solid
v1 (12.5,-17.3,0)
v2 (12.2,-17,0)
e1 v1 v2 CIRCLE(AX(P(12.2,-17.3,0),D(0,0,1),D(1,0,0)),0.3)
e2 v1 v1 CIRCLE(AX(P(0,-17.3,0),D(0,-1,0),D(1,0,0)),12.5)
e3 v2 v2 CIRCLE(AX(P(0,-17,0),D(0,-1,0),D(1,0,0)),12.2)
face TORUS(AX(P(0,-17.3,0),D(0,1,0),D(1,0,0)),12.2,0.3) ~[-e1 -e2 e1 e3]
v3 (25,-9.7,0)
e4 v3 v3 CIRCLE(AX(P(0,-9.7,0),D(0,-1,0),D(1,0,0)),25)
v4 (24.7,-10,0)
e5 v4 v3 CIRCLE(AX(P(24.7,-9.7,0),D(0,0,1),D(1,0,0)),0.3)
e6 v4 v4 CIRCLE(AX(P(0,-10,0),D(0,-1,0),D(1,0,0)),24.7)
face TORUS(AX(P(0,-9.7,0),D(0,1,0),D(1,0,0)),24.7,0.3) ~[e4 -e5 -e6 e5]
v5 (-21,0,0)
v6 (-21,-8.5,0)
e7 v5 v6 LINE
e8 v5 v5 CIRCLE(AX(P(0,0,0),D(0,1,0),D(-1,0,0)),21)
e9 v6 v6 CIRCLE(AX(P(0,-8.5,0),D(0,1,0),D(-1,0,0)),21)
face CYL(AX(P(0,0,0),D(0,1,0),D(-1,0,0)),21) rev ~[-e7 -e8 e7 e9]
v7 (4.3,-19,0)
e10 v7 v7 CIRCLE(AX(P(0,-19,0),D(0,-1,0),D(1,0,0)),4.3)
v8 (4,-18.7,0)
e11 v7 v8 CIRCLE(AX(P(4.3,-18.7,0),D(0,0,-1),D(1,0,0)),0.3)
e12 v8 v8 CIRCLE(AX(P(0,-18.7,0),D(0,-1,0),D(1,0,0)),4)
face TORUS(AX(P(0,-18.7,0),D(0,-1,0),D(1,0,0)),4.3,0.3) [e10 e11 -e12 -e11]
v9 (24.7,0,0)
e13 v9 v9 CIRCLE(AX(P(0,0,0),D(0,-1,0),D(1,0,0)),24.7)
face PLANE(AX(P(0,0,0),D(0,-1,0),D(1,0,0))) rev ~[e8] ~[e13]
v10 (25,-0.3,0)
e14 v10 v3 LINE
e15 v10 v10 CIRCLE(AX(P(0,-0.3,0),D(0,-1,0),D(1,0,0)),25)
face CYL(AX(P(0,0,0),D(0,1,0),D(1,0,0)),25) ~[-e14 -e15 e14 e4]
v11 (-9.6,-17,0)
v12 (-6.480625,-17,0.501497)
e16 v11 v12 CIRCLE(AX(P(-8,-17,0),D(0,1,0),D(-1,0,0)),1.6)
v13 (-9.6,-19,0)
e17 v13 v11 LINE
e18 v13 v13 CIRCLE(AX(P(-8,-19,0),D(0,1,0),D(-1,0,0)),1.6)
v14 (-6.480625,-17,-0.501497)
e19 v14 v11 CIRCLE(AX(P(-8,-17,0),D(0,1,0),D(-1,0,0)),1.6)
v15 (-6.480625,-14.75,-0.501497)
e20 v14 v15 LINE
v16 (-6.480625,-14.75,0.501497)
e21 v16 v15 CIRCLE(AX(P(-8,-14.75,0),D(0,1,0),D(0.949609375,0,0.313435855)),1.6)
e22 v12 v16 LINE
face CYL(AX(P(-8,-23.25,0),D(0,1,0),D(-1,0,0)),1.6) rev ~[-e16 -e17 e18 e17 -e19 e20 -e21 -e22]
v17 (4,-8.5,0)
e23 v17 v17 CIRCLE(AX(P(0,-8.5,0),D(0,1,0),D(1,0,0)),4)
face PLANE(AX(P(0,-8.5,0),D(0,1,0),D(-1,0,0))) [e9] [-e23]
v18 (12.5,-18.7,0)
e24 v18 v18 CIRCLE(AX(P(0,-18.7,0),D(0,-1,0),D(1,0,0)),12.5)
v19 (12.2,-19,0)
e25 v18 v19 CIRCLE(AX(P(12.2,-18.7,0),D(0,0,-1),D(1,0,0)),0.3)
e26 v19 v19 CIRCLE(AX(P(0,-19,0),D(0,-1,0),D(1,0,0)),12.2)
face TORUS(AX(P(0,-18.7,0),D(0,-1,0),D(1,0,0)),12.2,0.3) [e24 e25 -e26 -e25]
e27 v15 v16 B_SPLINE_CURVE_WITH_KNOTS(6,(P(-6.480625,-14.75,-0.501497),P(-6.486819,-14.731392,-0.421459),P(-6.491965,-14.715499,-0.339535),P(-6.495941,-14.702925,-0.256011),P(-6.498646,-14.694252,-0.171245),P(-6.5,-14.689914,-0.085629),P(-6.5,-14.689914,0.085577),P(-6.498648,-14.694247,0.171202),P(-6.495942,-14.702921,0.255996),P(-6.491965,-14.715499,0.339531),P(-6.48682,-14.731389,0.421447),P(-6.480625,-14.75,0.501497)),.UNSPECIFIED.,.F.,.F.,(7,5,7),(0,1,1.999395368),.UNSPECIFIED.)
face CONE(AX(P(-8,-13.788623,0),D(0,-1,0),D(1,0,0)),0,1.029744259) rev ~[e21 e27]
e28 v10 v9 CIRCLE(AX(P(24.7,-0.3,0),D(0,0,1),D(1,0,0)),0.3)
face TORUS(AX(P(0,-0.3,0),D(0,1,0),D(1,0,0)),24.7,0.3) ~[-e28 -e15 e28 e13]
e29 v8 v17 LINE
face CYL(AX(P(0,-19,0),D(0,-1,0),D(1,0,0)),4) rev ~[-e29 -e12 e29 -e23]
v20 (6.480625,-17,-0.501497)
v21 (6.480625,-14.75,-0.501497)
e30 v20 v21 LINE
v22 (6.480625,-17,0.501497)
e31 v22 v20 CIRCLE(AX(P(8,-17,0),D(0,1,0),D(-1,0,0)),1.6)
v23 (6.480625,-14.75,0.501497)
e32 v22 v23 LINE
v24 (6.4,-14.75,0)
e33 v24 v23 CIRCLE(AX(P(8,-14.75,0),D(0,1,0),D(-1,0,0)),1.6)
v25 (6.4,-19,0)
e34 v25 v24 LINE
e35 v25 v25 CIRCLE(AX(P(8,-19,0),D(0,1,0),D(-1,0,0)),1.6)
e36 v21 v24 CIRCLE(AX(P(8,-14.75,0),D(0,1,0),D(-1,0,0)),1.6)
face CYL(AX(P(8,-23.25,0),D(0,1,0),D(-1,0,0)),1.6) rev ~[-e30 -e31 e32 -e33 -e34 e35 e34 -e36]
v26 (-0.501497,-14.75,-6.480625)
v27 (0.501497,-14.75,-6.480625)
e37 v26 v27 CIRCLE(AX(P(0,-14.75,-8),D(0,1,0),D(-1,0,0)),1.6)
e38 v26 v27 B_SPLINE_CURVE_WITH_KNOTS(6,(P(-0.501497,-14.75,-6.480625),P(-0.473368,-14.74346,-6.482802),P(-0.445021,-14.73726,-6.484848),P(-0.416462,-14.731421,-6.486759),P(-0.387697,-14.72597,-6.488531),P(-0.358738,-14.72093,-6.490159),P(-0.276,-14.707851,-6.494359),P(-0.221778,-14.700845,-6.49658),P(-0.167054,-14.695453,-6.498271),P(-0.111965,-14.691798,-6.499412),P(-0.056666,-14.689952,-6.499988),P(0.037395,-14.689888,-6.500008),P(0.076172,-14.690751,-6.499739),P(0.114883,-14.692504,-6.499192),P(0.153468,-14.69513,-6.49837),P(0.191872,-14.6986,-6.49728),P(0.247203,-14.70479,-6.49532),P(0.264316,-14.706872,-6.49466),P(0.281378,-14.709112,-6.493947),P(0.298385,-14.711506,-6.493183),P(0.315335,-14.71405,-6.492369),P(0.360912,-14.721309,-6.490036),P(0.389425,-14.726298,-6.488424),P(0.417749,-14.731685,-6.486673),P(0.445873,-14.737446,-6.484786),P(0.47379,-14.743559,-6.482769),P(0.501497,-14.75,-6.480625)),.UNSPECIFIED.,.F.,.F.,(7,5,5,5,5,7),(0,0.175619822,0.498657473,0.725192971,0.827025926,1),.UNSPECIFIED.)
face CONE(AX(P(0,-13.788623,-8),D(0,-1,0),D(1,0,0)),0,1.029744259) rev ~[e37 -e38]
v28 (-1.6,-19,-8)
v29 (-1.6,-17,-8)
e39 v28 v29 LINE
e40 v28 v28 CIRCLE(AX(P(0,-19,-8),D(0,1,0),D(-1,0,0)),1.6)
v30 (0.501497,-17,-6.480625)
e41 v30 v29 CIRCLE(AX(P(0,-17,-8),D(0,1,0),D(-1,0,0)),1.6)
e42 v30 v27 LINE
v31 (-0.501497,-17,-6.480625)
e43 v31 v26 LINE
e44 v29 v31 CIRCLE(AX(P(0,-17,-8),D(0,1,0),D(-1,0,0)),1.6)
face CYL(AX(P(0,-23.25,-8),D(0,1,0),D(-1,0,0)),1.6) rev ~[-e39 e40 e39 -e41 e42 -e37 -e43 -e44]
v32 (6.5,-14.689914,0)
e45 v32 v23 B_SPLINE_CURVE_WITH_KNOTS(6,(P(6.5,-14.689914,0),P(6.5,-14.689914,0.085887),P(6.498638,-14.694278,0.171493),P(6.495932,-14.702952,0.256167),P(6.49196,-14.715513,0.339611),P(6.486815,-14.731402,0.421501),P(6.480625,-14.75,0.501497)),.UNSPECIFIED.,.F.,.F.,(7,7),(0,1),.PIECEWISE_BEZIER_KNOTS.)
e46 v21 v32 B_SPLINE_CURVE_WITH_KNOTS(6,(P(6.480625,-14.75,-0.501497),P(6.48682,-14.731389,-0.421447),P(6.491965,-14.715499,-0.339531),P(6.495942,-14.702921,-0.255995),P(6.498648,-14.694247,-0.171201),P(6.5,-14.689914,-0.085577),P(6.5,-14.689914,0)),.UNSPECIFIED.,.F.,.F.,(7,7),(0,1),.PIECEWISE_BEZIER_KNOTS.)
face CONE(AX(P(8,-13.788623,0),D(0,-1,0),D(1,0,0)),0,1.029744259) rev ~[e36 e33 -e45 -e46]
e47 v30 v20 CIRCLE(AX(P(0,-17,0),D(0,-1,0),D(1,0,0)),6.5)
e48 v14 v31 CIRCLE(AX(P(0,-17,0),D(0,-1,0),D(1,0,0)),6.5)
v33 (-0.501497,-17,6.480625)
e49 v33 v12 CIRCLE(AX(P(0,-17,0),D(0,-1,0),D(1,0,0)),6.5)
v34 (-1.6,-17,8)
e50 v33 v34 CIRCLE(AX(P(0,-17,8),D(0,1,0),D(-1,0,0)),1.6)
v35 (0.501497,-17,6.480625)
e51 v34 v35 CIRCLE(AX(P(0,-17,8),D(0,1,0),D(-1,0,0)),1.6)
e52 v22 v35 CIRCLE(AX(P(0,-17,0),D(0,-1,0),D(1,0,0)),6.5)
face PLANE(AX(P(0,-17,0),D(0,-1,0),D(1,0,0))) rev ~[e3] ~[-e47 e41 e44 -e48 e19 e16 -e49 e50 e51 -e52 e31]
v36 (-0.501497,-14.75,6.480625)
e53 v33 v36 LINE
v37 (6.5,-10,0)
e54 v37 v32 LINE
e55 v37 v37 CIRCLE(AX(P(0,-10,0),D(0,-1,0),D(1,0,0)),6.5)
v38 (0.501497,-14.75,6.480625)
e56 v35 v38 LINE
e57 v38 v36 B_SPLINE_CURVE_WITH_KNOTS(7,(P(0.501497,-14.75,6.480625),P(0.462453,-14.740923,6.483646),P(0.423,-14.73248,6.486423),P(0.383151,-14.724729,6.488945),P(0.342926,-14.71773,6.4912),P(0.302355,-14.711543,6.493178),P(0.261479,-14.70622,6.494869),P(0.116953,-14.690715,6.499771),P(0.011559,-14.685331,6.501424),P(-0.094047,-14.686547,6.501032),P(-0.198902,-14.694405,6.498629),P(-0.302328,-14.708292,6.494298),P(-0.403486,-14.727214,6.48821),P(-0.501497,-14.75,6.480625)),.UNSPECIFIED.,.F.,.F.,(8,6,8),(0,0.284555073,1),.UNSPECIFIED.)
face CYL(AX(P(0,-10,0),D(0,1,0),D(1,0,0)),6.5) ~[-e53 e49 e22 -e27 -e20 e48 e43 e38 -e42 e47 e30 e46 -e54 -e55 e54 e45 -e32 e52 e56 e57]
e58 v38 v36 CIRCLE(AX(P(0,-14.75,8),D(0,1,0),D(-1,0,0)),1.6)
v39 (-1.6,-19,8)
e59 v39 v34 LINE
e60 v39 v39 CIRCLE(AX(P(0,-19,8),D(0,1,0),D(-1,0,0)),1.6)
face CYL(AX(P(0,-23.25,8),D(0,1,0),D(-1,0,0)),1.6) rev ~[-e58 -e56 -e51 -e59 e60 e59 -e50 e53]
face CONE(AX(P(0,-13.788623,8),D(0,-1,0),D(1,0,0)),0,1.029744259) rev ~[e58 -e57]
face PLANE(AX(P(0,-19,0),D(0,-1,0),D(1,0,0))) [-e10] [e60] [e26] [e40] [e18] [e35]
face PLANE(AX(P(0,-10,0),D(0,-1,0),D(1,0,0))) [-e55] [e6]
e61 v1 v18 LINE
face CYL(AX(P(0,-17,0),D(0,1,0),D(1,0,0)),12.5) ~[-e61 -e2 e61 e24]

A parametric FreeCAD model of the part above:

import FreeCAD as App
import Part
import Sketcher

V = App.Vector


def edges_at(feature, points):
    """Names of the edges that pass closest to the given points."""
    edges = feature.Shape.Edges
    near = lambda p: min(range(len(edges)), key=lambda i: edges[i].distToShape(Part.Vertex(*p))[0])
    return sorted({f"Edge{near(p) + 1}" for p in points})

doc = App.newDocument("Part")
body = doc.addObject("PartDesign::Body", "Body")

# Sketch on XZ plane
sketch1 = doc.addObject("Sketcher::SketchObject", "Sketch")
body.addObject(sketch1)
sketch1.AttachmentSupport = (doc.XZ_Plane, [""])
sketch1.MapMode = "FlatFace"
sketch1.addGeometry(Part.Circle(V(0, 0, 0), V(0, 0, 1), 25), False)
sketch1.addConstraint([
    Sketcher.Constraint("Coincident", 0, 3, -1, 1),
    Sketcher.Constraint("Diameter", 0, 50.0),
])
pad1 = doc.addObject("PartDesign::Pad", "Pad")
body.addObject(pad1)
pad1.Profile = sketch1
pad1.Length = 10

# Sketch on XZ plane
sketch2 = doc.addObject("Sketcher::SketchObject", "Sketch001")
body.addObject(sketch2)
sketch2.AttachmentSupport = (doc.XZ_Plane, [""])
sketch2.MapMode = "FlatFace"
sketch2.AttachmentOffset = App.Placement(V(0, 0, 10), App.Rotation())
sketch2.addGeometry(Part.Circle(V(0, 0, 0), V(0, 0, 1), 6), False)
sketch2.addConstraint([
    Sketcher.Constraint("Coincident", 0, 3, -1, 1),
    Sketcher.Constraint("Diameter", 0, 13.0),
])
pad2 = doc.addObject("PartDesign::Pad", "Pad001")
body.addObject(pad2)
pad2.Profile = sketch2
pad2.Length = 7

# Sketch on XZ plane
sketch3 = doc.addObject("Sketcher::SketchObject", "Sketch002")
body.addObject(sketch3)
sketch3.AttachmentSupport = (doc.XZ_Plane, [""])
sketch3.MapMode = "FlatFace"
sketch3.AttachmentOffset = App.Placement(V(0, 0, 17), App.Rotation())
sketch3.addGeometry(Part.Circle(V(0, 0, 0), V(0, 0, 1), 12), False)
sketch3.addConstraint([
    Sketcher.Constraint("Coincident", 0, 3, -1, 1),
    Sketcher.Constraint("Diameter", 0, 25.0),
])
pad3 = doc.addObject("PartDesign::Pad", "Pad002")
body.addObject(pad3)
pad3.Profile = sketch3
pad3.Length = 2

# Sketch on XZ plane
sketch4 = doc.addObject("Sketcher::SketchObject", "Sketch003")
body.addObject(sketch4)
sketch4.AttachmentSupport = (doc.XZ_Plane, [""])
sketch4.MapMode = "FlatFace"
sketch4.AttachmentOffset = App.Placement(V(0, 0, 19), App.Rotation())
sketch4.addGeometry(Part.Circle(V(0, 0, 0), V(0, 0, 1), 4), False)
sketch4.addConstraint([
    Sketcher.Constraint("Coincident", 0, 3, -1, 1),
    Sketcher.Constraint("Diameter", 0, 8.0),
])
pocket1 = doc.addObject("PartDesign::Pocket", "Pocket")
body.addObject(pocket1)
pocket1.Profile = sketch4
pocket1.Type = "ThroughAll"

# Sketch on XZ plane
sketch5 = doc.addObject("Sketcher::SketchObject", "Sketch004")
body.addObject(sketch5)
sketch5.AttachmentSupport = (doc.XZ_Plane, [""])
sketch5.MapMode = "FlatFace"
sketch5.AttachmentOffset = App.Placement(V(0, 0, 19), App.Rotation())
sketch5.addGeometry([
    Part.Circle(V(-8, 0, 0), V(0, 0, 1), 1.6),
    Part.Circle(V(0, 8, 0), V(0, 0, 1), 1.6),
    Part.Circle(V(8, 0, 0), V(0, 0, 1), 1.6),
    Part.Circle(V(0, -8, 0), V(0, 0, 1), 1.6),
], False)
sketch5.addConstraint([
    Sketcher.Constraint("Equal", 0, 1),
    Sketcher.Constraint("Equal", 1, 2),
    Sketcher.Constraint("Equal", 2, 3),
    Sketcher.Constraint("Symmetric", 0, 3, 2, 3, -1, 1),
    Sketcher.Constraint("Symmetric", 1, 3, 3, 3, -1, 1),
    Sketcher.Constraint("PointOnObject", 0, 3, -1),
    Sketcher.Constraint("PointOnObject", 1, 3, -2),
    Sketcher.Constraint("Diameter", 0, 3.2),
    Sketcher.Constraint("DistanceX", 0, 3, -1, 1, 8.0),
    Sketcher.Constraint("DistanceY", -1, 1, 1, 3, 8.0),
])
doc.recompute()
hole = doc.addObject("PartDesign::Hole", "Hole")
body.addObject(hole)
hole.Profile = sketch5
hole.ThreadType = "None"
hole.Diameter = 3.2
hole.DepthType = "Dimension"
hole.Depth = 4.25
hole.DrillPoint = "Angled"
hole.DrillPointAngle = 118
doc.recompute()

fillet = doc.addObject("PartDesign::Fillet", "Fillet")
body.addObject(fillet)
fillet.Base = (hole, edges_at(hole, [
    (-25, -10, 0),
    (-25, 0, 0),
    (-12.5, -19, 0),
    (-12.5, -17, 0),
    (-4, -19, 0),
]))
fillet.Radius = 0.3

# Sketch on XZ plane
sketch6 = doc.addObject("Sketcher::SketchObject", "Sketch005")
body.addObject(sketch6)
sketch6.AttachmentSupport = (doc.XZ_Plane, [""])
sketch6.MapMode = "FlatFace"
sketch6.addGeometry([
    Part.Circle(V(0, 0, 0), V(0, 0, 1), 21),
    Part.Circle(V(0, 0, 0), V(0, 0, 1), 4),
], False)
sketch6.addConstraint([
    Sketcher.Constraint("Coincident", 0, 3, -1, 1),
    Sketcher.Constraint("Coincident", 1, 3, -1, 1),
    Sketcher.Constraint("Diameter", 0, 42.0),
    Sketcher.Constraint("Diameter", 1, 8.0),
])
pocket2 = doc.addObject("PartDesign::Pocket", "Pocket001")
body.addObject(pocket2)
pocket2.Profile = sketch6
pocket2.Length = 8.5
pocket2.Reversed = True

doc.recompute()
